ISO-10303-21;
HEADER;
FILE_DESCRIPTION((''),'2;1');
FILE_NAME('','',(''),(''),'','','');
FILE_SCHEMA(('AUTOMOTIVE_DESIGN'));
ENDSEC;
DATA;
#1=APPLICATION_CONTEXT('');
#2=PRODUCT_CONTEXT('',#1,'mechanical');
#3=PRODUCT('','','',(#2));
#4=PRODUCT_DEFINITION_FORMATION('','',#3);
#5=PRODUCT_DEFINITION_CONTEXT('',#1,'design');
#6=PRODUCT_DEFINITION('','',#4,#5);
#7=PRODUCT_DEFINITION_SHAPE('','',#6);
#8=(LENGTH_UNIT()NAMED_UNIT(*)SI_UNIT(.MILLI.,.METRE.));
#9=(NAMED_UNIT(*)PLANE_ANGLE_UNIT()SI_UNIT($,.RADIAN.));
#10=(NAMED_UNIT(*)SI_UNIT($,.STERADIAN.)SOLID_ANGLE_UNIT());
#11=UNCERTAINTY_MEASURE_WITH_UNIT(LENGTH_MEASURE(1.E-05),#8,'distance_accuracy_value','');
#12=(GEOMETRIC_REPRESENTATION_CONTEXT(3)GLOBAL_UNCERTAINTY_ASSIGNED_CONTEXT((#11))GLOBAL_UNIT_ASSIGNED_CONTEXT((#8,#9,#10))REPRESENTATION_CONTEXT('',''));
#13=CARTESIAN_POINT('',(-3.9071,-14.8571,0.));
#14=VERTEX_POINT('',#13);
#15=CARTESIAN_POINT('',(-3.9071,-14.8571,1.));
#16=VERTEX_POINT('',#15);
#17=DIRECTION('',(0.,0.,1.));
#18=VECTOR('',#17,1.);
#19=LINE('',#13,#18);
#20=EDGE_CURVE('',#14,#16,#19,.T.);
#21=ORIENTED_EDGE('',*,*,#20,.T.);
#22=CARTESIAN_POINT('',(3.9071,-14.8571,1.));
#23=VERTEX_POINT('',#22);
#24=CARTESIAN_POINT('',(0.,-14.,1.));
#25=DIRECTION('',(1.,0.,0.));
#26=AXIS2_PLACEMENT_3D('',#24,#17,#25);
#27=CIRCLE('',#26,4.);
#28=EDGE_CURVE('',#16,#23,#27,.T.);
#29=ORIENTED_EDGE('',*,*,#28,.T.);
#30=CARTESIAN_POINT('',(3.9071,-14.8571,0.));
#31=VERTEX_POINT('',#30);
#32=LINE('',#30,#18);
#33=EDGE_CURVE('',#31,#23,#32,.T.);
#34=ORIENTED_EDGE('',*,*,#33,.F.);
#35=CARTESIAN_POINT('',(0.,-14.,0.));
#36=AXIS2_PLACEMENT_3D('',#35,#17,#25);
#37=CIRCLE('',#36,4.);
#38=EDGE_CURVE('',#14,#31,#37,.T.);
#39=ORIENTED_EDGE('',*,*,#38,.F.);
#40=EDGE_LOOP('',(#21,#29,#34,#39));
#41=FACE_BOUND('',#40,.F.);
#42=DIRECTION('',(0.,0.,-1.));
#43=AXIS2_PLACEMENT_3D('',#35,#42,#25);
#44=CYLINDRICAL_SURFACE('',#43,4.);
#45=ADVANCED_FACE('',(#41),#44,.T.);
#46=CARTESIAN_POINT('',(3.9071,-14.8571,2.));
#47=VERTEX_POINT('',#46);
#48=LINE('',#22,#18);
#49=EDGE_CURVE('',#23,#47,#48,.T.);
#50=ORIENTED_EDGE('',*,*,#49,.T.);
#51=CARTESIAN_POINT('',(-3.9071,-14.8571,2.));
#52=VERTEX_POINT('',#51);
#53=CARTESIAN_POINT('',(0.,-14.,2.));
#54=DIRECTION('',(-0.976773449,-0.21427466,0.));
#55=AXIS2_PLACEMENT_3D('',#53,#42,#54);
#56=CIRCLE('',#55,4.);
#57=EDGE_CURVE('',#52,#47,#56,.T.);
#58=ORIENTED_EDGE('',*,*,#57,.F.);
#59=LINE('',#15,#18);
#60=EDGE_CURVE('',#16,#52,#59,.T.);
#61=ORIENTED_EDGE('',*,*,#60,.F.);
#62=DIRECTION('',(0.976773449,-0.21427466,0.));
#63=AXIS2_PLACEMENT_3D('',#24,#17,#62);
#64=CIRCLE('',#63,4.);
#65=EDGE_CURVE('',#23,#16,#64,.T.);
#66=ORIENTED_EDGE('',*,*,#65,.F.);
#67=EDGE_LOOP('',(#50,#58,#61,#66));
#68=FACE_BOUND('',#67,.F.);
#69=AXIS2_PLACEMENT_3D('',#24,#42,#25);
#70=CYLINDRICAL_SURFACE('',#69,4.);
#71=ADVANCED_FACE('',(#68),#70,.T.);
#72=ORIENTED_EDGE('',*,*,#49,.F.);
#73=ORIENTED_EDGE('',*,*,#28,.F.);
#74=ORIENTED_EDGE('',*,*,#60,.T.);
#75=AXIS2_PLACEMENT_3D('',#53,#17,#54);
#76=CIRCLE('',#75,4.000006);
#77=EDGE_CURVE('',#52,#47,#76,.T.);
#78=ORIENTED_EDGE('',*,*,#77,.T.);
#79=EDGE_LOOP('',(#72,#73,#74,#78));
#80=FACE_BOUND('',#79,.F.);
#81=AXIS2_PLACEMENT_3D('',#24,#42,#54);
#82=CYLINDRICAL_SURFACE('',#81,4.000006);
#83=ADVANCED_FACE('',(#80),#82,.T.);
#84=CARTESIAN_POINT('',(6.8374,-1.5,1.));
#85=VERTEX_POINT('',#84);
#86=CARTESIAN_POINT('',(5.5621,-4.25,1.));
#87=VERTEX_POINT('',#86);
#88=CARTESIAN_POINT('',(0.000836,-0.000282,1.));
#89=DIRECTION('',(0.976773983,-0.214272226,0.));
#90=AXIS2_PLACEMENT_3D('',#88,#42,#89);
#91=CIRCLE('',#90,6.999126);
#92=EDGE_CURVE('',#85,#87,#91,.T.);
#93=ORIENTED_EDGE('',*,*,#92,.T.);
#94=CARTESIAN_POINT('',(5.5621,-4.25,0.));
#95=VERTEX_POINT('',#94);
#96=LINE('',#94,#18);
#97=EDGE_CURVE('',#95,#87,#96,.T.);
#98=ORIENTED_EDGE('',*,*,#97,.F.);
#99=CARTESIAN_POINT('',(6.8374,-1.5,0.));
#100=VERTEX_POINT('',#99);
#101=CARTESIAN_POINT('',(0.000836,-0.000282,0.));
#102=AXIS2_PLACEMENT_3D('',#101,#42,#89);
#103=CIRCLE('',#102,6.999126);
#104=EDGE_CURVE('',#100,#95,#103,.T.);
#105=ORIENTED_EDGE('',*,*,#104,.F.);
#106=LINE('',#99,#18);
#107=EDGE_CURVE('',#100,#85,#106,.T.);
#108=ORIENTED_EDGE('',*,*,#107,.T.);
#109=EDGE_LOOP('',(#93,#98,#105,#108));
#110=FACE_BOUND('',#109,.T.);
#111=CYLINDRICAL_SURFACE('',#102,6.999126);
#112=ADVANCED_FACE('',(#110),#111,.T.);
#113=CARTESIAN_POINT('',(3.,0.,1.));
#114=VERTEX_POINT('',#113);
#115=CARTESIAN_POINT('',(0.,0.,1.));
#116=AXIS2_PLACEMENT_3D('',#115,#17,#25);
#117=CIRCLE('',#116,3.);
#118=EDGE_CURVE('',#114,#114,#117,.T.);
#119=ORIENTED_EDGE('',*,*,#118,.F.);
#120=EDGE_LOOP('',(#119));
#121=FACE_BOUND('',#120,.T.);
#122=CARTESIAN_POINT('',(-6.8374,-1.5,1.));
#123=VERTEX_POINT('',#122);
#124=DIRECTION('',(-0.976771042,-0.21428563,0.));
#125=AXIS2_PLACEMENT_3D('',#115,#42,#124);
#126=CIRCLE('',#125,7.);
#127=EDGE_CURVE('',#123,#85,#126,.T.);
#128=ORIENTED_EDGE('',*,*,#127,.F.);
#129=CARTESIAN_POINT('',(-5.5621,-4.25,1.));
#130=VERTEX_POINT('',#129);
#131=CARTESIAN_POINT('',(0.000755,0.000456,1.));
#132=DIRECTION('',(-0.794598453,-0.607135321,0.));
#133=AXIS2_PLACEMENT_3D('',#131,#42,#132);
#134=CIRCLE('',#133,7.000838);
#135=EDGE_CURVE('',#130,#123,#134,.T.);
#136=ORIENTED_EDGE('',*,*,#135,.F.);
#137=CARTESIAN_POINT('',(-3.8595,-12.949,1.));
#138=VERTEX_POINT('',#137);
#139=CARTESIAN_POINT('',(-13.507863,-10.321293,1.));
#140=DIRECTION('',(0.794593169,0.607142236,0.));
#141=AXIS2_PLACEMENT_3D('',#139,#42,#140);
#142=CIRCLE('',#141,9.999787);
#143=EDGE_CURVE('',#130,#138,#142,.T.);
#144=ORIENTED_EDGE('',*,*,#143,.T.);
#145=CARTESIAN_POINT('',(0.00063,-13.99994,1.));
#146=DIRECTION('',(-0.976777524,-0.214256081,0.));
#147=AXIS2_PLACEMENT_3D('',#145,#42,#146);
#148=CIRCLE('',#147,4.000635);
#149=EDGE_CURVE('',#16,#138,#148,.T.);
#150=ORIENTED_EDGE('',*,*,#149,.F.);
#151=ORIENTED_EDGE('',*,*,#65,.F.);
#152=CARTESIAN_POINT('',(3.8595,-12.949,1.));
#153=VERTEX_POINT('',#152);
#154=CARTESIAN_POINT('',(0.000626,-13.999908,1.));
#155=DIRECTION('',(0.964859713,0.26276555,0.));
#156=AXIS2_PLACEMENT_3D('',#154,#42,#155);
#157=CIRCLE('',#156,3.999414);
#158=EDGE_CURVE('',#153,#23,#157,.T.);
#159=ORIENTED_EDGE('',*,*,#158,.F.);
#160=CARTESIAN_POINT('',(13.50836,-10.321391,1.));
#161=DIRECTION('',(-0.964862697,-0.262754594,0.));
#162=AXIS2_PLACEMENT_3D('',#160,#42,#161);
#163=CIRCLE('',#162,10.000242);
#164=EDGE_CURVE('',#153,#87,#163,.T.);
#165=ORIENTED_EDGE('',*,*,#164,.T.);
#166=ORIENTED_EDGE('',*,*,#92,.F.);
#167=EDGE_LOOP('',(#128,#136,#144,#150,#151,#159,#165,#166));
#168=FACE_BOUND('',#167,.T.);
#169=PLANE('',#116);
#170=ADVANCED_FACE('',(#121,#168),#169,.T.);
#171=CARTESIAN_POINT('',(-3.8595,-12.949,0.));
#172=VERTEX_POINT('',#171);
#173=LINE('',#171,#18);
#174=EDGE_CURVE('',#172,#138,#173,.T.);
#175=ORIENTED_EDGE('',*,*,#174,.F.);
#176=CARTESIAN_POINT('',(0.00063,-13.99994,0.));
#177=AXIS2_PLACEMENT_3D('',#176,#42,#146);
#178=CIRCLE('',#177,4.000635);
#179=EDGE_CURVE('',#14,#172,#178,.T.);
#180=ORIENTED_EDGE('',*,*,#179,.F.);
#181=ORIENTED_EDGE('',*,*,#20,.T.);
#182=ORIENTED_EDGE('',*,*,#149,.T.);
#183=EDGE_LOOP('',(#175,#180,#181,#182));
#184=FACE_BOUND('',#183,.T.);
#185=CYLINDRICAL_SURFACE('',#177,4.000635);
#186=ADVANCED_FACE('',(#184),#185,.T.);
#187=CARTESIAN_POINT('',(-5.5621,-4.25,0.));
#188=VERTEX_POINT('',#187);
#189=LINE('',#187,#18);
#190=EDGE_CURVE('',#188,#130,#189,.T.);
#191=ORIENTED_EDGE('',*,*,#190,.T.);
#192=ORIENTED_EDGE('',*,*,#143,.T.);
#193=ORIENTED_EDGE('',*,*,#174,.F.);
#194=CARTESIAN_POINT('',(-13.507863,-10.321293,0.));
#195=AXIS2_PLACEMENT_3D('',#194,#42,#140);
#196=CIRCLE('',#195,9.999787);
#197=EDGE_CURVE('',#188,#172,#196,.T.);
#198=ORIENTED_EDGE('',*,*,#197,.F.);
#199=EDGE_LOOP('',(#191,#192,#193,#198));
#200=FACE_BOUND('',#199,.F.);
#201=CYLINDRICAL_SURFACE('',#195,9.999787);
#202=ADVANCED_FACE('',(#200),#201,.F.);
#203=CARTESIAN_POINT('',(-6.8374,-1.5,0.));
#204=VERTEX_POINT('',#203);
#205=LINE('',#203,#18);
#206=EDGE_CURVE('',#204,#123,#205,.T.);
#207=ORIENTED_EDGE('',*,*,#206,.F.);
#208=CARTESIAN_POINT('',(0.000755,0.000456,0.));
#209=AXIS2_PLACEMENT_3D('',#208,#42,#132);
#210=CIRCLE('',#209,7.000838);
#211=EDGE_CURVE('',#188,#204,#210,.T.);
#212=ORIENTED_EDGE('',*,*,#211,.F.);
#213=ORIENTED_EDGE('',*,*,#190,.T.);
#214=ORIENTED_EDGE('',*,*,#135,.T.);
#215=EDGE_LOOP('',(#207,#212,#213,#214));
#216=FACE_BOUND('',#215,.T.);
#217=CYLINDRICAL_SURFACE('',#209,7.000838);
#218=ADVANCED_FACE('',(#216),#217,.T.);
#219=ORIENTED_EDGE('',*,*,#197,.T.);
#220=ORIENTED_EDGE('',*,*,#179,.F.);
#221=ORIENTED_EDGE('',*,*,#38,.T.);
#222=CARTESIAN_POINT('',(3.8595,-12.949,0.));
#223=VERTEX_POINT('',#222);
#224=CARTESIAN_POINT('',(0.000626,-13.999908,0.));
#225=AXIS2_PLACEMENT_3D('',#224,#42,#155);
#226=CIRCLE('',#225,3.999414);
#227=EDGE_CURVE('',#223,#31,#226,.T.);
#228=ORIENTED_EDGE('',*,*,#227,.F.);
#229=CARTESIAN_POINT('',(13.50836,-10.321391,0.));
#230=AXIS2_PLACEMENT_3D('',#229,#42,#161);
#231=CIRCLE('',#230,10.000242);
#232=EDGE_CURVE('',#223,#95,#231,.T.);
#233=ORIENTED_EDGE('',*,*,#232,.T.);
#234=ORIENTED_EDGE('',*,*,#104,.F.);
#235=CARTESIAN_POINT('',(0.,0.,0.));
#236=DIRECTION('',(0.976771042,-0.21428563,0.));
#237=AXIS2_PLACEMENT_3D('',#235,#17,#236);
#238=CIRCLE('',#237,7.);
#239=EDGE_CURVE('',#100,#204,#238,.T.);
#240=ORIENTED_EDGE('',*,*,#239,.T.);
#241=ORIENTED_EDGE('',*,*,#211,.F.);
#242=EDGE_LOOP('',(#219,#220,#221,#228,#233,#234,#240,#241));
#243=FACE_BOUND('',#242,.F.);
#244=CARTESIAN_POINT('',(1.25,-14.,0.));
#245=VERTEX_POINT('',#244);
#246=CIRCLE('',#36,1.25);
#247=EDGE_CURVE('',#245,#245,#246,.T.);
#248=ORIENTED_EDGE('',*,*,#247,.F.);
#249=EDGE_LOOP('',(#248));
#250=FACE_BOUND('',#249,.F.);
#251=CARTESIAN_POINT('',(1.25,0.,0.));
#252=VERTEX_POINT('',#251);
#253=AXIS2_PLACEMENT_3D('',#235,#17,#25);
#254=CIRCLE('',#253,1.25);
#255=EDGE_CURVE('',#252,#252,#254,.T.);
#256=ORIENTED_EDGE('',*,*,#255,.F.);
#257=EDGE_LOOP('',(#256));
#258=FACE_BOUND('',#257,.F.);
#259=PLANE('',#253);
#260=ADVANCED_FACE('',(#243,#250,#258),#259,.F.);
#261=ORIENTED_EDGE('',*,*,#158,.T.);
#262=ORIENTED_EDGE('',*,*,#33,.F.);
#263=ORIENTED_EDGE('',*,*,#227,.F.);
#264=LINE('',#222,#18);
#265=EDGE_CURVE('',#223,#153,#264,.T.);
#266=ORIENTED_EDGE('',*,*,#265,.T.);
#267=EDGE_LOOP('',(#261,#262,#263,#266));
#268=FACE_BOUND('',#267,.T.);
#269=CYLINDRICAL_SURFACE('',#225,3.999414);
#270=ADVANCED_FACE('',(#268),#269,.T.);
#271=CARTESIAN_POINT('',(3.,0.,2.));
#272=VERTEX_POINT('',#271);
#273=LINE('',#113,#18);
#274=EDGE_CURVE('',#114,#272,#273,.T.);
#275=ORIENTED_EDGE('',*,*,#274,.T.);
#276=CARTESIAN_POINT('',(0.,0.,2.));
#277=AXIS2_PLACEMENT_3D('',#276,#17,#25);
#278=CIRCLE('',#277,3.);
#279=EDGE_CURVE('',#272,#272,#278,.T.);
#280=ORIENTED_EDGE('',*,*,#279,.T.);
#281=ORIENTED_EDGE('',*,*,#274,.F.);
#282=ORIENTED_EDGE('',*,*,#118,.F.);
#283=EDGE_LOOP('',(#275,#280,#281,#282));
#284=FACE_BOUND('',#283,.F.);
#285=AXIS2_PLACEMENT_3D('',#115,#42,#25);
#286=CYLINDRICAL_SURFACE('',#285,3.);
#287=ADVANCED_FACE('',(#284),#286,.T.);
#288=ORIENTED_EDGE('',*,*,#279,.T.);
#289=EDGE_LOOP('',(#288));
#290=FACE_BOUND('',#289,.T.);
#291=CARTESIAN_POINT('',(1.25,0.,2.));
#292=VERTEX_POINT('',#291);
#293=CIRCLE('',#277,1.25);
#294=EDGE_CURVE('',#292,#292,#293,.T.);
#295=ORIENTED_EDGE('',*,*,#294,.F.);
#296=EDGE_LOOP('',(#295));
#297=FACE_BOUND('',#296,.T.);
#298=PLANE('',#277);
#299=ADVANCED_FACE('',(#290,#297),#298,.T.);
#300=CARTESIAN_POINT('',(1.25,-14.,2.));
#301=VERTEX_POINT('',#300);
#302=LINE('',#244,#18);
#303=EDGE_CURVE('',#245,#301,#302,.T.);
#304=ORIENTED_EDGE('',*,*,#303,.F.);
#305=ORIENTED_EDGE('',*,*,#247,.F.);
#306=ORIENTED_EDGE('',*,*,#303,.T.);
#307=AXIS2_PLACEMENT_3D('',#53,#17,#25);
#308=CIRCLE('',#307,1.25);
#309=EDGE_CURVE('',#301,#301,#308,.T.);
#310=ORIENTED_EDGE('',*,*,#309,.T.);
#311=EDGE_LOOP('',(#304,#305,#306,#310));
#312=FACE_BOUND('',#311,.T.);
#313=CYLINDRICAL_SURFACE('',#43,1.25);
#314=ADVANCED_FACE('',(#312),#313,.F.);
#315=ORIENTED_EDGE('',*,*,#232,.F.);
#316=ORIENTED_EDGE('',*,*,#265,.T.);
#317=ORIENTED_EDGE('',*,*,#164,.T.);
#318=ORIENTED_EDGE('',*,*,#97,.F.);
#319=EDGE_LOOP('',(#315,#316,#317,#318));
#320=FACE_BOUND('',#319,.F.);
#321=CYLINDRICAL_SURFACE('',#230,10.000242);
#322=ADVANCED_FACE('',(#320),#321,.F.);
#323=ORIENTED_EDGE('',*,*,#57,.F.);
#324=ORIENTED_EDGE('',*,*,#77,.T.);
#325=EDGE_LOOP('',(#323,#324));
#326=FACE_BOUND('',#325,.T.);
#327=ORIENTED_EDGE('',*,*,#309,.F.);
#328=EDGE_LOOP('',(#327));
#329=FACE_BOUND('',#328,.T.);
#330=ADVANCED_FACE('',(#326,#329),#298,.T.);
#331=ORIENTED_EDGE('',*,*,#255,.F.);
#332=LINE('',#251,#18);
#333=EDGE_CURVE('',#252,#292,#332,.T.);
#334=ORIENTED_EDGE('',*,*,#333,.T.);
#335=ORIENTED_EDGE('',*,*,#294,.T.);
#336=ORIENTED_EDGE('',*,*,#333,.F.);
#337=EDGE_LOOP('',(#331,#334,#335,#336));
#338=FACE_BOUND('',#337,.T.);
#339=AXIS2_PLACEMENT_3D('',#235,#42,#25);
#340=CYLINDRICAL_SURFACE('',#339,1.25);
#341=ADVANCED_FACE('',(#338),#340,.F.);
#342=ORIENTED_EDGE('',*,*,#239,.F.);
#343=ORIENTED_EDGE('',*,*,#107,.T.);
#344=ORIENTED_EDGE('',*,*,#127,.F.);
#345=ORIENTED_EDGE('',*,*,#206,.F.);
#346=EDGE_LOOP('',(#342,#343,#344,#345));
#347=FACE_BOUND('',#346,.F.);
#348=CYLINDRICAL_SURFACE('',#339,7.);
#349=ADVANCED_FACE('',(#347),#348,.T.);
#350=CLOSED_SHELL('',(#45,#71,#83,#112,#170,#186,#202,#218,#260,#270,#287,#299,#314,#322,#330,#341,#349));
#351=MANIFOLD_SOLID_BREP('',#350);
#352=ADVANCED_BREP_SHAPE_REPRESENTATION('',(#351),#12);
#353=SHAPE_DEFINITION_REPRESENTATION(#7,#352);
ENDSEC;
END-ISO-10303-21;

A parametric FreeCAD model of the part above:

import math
import FreeCAD as App
import Part
import Sketcher

doc = App.newDocument("Part")
body = doc.addObject("PartDesign::Body", "Body")

# Sketch on XY plane
sketch1 = body.newObject("Sketcher::SketchObject", "Sketch")
sketch1.AttachmentSupport = (doc.getObject("XY_Plane"), [""])
sketch1.MapMode = "FlatFace"
sketch1.addGeometry([
    Part.ArcOfCircle(Part.Circle(App.Vector(0, 0, 0), App.Vector(0, 0, 1), 7), math.radians(-12), math.radians(192)),  # 0
    Part.LineSegment(App.Vector(-6.8, -1.5, 0), App.Vector(-3.9, -14.9, 0)),  # 1
    Part.ArcOfCircle(Part.Circle(App.Vector(0, -14, 0), App.Vector(0, 0, 1), 4), math.radians(-168), math.radians(-12)),  # 2
    Part.LineSegment(App.Vector(3.9, -14.9, 0), App.Vector(6.8, -1.5, 0)),  # 3
    Part.Circle(App.Vector(0, 0, 0), App.Vector(0, 0, 1), 1.2),  # 4
    Part.Circle(App.Vector(0, -14, 0), App.Vector(0, 0, 1), 1.2),  # 5
], False)
sketch1.addConstraint([
    Sketcher.Constraint("Tangent", 0, 2, 1, 1),
    Sketcher.Constraint("Tangent", 1, 2, 2, 1),
    Sketcher.Constraint("Tangent", 2, 2, 3, 1),
    Sketcher.Constraint("Tangent", 3, 2, 0, 1),
    Sketcher.Constraint("Coincident", 0, 3, -1, 1),
    Sketcher.Constraint("Coincident", 4, 3, -1, 1),
    Sketcher.Constraint("Coincident", 5, 3, 2, 3),
    Sketcher.Constraint("Equal", 4, 5),
    Sketcher.Constraint("PointOnObject", 2, 3, -2),
    Sketcher.Constraint("Radius", 0, 7.0),
    Sketcher.Constraint("Radius", 2, 4.0),
    Sketcher.Constraint("Diameter", 4, 2.5),
    Sketcher.Constraint("DistanceY", 2, 3, -1, 1, 14.0),
])
pad1 = body.newObject("PartDesign::Pad", "Pad")
pad1.Profile = sketch1
pad1.Length = 1

# Sketch on XY plane
sketch2 = body.newObject("Sketcher::SketchObject", "Sketch001")
sketch2.AttachmentSupport = (doc.getObject("XY_Plane"), [""])
sketch2.MapMode = "FlatFace"
sketch2.AttachmentOffset = App.Placement(App.Vector(0, 0, 1), App.Rotation())
sketch2.addGeometry([
    Part.Circle(App.Vector(0, 0, 0), App.Vector(0, 0, 1), 3),
    Part.Circle(App.Vector(0, 0, 0), App.Vector(0, 0, 1), 1.2),
    Part.Circle(App.Vector(0, -14, 0), App.Vector(0, 0, 1), 4),
    Part.Circle(App.Vector(0, -14, 0), App.Vector(0, 0, 1), 1.2),
], False)
sketch2.addConstraint([
    Sketcher.Constraint("Coincident", 0, 3, -1, 1),
    Sketcher.Constraint("Coincident", 1, 3, -1, 1),
    Sketcher.Constraint("Coincident", 3, 3, 2, 3),
    Sketcher.Constraint("Equal", 1, 3),
    Sketcher.Constraint("PointOnObject", 2, 3, -2),
    Sketcher.Constraint("Diameter", 0, 6.0),
    Sketcher.Constraint("Diameter", 2, 8.0),
    Sketcher.Constraint("Diameter", 1, 2.5),
    Sketcher.Constraint("DistanceY", 2, 3, -1, 1, 14.0),
])
pad2 = body.newObject("PartDesign::Pad", "Pad001")
pad2.Profile = sketch2
pad2.Length = 1

# Sketch on XY plane
sketch3 = body.newObject("Sketcher::SketchObject", "Sketch002")
sketch3.AttachmentSupport = (doc.getObject("XY_Plane"), [""])
sketch3.MapMode = "FlatFace"
sketch3.addGeometry([
    Part.ArcOfCircle(Part.Circle(App.Vector(0, 0, 0), App.Vector(0, 0, 1), 7), math.radians(-37), math.radians(-12)),  # 0
    Part.LineSegment(App.Vector(6.8, -1.5, 0), App.Vector(3.9, -14.9, 0)),  # 1
    Part.ArcOfCircle(Part.Circle(App.Vector(0, -14, 0), App.Vector(0, 0, 1), 4), math.radians(-12), math.radians(15)),  # 2
    Part.ArcOfCircle(Part.Circle(App.Vector(13.5, -10.3, 0), App.Vector(0, 0, 1), 10), math.radians(143), math.radians(195)),  # 3
    Part.ArcOfCircle(Part.Circle(App.Vector(0, -14, 0), App.Vector(0, 0, 1), 4), math.radians(165), math.radians(192)),  # 4
    Part.LineSegment(App.Vector(-3.9, -14.9, 0), App.Vector(-6.8, -1.5, 0)),  # 5
    Part.ArcOfCircle(Part.Circle(App.Vector(0, 0, 0), App.Vector(0, 0, 1), 7), math.radians(-168), math.radians(-143)),  # 6
    Part.ArcOfCircle(Part.Circle(App.Vector(-13.5, -10.3, 0), App.Vector(0, 0, 1), 10), math.radians(-15), math.radians(37)),  # 7
], False)
sketch3.addConstraint([
    Sketcher.Constraint("Tangent", 0, 2, 1, 1),
    Sketcher.Constraint("Tangent", 1, 2, 2, 1),
    Sketcher.Constraint("Tangent", 2, 2, 3, 2),
    Sketcher.Constraint("Tangent", 3, 1, 0, 1),
    Sketcher.Constraint("Tangent", 4, 2, 5, 1),
    Sketcher.Constraint("Tangent", 5, 2, 6, 1),
    Sketcher.Constraint("Tangent", 6, 2, 7, 2),
    Sketcher.Constraint("Tangent", 7, 1, 4, 1),
    Sketcher.Constraint("Coincident", 0, 3, -1, 1),
    Sketcher.Constraint("Coincident", 6, 3, -1, 1),
    Sketcher.Constraint("Coincident", 4, 3, 2, 3),
    Sketcher.Constraint("Equal", 2, 4),
    Sketcher.Constraint("Equal", 0, 6),
    Sketcher.Constraint("Equal", 3, 7),
    Sketcher.Constraint("PointOnObject", 2, 3, -2),
    Sketcher.Constraint("Radius", 3, 10.0),
    Sketcher.Constraint("Radius", 0, 7.0),
    Sketcher.Constraint("Radius", 2, 4.0),
    Sketcher.Constraint("DistanceY", 2, 3, -1, 1, 14.0),
])
pocket1 = body.newObject("PartDesign::Pocket", "Pocket")
pocket1.Profile = sketch3
pocket1.Length = 10
pocket1.Reversed = True

doc.recompute()
